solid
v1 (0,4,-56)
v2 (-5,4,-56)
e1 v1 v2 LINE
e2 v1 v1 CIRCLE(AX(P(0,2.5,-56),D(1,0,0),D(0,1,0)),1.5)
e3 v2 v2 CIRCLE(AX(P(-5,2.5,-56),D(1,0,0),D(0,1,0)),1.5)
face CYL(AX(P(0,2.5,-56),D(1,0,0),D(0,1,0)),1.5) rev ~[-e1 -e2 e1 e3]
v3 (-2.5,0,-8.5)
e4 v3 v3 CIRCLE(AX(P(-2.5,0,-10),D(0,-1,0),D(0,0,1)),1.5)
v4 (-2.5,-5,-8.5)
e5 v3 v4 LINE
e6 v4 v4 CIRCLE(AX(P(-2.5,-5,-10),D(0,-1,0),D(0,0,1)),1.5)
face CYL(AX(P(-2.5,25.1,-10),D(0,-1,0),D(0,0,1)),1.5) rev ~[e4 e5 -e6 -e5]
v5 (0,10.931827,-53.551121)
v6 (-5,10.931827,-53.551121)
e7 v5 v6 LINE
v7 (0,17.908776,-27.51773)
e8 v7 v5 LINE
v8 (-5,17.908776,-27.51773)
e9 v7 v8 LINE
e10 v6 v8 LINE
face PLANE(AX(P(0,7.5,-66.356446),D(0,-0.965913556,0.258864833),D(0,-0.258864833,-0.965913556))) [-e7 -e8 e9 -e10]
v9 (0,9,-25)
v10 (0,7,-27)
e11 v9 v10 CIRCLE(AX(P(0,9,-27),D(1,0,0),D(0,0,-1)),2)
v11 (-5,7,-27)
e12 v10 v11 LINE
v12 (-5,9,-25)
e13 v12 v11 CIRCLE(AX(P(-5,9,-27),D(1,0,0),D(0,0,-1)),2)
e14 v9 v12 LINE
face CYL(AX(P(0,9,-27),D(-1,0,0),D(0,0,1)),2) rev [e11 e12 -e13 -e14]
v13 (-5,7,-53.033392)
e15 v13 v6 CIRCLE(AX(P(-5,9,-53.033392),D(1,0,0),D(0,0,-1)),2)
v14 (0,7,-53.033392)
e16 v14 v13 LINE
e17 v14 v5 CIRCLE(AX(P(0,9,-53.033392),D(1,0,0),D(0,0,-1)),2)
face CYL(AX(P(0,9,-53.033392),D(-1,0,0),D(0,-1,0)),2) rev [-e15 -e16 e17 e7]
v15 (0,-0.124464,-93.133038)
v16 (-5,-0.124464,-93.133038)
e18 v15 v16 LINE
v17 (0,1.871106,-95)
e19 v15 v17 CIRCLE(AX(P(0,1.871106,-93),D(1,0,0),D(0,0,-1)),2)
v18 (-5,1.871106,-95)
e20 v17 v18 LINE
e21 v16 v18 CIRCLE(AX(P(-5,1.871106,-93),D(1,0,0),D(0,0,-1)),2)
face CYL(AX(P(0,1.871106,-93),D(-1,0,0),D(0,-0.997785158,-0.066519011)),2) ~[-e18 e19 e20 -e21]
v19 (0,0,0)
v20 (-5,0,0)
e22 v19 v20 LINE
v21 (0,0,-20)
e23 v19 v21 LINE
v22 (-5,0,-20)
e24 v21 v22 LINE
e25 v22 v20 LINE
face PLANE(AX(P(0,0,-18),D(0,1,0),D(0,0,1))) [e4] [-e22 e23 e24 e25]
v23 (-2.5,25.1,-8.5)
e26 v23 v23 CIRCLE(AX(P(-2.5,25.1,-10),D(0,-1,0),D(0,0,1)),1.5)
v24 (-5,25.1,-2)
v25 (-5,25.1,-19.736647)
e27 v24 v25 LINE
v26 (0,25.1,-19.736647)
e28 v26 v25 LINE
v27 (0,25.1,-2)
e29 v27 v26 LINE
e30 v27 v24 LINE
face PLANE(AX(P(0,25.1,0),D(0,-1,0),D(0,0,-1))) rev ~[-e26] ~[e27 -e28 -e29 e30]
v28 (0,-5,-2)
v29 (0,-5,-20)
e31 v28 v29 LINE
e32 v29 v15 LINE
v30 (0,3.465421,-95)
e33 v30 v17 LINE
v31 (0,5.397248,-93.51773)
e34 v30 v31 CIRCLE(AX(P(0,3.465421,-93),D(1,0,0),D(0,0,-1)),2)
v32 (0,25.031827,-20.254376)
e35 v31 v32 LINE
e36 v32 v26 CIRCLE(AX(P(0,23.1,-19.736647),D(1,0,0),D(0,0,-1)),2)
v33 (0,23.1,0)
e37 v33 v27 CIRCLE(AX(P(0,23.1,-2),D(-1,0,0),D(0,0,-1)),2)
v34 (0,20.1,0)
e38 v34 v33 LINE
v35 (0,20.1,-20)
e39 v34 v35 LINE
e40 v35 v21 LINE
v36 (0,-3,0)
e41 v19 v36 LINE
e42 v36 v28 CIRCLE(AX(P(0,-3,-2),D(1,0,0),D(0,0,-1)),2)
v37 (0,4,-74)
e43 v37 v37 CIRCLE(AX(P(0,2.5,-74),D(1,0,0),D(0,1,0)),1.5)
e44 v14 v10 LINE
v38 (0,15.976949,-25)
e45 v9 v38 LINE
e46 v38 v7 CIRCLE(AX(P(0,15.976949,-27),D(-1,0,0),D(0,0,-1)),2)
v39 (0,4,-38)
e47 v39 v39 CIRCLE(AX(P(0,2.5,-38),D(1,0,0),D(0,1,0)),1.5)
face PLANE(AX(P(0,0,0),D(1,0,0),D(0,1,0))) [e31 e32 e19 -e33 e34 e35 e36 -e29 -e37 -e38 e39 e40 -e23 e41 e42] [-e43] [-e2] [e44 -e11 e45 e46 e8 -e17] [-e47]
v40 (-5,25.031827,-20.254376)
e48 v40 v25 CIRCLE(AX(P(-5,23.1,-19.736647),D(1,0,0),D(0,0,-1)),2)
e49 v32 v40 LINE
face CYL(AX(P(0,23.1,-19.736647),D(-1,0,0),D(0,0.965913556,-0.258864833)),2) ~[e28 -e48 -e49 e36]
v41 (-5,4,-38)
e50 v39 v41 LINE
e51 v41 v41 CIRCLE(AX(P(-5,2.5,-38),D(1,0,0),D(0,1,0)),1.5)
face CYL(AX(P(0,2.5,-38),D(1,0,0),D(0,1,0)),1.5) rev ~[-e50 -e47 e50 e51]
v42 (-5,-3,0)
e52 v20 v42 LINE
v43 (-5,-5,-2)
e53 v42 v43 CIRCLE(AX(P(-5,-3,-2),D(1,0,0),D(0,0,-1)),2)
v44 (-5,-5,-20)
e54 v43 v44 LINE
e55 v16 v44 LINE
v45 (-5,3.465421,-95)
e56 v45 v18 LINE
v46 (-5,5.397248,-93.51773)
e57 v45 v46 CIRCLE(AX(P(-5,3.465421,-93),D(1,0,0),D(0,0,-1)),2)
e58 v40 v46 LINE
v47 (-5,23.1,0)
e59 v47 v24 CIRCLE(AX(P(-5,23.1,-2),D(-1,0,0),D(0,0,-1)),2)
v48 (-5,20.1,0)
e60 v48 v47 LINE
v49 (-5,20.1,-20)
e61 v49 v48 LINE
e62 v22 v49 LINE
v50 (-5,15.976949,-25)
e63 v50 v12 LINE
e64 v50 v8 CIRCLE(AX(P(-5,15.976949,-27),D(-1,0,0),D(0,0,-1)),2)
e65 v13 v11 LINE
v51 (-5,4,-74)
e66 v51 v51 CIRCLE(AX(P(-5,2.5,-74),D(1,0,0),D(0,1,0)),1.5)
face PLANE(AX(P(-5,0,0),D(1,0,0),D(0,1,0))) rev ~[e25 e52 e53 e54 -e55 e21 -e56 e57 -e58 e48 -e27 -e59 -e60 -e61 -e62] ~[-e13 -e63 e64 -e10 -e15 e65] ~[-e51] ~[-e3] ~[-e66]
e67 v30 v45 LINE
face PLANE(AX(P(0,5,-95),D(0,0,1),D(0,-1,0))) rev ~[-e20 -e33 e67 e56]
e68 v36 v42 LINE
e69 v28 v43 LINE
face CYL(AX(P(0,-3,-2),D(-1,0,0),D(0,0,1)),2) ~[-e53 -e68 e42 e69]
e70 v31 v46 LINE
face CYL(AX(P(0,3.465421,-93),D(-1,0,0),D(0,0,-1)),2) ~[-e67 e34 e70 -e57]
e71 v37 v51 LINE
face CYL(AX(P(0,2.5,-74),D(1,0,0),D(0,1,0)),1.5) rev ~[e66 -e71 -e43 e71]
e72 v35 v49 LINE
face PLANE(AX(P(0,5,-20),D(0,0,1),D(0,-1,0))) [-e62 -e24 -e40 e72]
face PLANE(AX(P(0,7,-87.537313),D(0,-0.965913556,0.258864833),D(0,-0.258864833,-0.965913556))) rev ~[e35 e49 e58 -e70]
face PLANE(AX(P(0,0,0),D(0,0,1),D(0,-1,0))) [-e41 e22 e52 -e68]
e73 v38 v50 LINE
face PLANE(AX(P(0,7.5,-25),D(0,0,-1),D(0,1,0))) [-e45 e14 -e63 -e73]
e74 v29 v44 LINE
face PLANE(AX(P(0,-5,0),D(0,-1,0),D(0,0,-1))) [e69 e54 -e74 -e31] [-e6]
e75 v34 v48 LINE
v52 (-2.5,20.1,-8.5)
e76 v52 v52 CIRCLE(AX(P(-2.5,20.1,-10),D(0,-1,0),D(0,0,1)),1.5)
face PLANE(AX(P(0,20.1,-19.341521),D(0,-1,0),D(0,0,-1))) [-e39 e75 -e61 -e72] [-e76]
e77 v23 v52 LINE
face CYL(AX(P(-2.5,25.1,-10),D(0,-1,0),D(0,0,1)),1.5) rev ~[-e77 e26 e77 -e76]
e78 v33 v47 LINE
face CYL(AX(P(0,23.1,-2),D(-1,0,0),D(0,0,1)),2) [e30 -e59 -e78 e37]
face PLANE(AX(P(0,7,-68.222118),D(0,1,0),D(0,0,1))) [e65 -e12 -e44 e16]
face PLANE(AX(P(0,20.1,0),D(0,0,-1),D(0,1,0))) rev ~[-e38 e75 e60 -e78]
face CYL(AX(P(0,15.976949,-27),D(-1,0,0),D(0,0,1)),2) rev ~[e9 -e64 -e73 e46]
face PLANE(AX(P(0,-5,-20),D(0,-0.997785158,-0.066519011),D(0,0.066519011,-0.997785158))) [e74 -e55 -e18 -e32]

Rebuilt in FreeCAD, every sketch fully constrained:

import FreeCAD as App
import Part
import Sketcher

V = App.Vector


def edges_at(feature, points):
    """Names of the edges that pass closest to the given points."""
    edges = feature.Shape.Edges
    near = lambda p: min(range(len(edges)), key=lambda i: edges[i].distToShape(Part.Vertex(*p))[0])
    return sorted({f"Edge{near(p) + 1}" for p in points})


def add_polygon(sketch, points):
    """Adds a closed chain of lines whose ends are joined by coincident constraints."""
    first, n = sketch.GeometryCount, len(points)
    for a, b in zip(points, points[1:] + points[:1]):
        sketch.addGeometry(Part.LineSegment(App.Vector(*a, 0), App.Vector(*b, 0)), False)
    for i in range(n):
        sketch.addConstraint(Sketcher.Constraint("Coincident", first + i, 2, first + (i + 1) % n, 1))

doc = App.newDocument("Part")
body = doc.addObject("PartDesign::Body", "Body")

# Sketch on YZ plane
sketch1 = body.newObject("Sketcher::SketchObject", "Sketch")
sketch1.AttachmentSupport = (doc.getObject("YZ_Plane"), [""])
sketch1.MapMode = "FlatFace"
add_polygon(sketch1, [(0, 0), (-5, 0), (-5, -20), (0, -95), (5, -95), (25.1, -20), (25.1, 0), (20.1, 0), (20.1, -20), (0, -20)])  # lines 0-9
sketch1.addGeometry(Part.Circle(V(2.5, -56, 0), V(0, 0, 1), 1.5), False)  # 10
sketch1.addGeometry(Part.Circle(V(2.5, -38, 0), V(0, 0, 1), 1.5), False)  # 11
sketch1.addGeometry(Part.Circle(V(2.5, -74, 0), V(0, 0, 1), 1.5), False)  # 12
add_polygon(sketch1, [(18.6, -25), (7, -68.2), (7, -25)])  # lines 13-15
sketch1.addConstraint([
    Sketcher.Constraint("Horizontal", 0),
    Sketcher.Constraint("Vertical", 1),
    Sketcher.Constraint("Horizontal", 3),
    Sketcher.Constraint("Vertical", 5),
    Sketcher.Constraint("Horizontal", 6),
    Sketcher.Constraint("Vertical", 7),
    Sketcher.Constraint("Horizontal", 8),
    Sketcher.Constraint("Vertical", 9),
    Sketcher.Constraint("Vertical", 14),
    Sketcher.Constraint("Horizontal", 15),
    Sketcher.Constraint("Coincident", 9, 2, -1, 1),
    Sketcher.Constraint("Equal", 10, 11),
    Sketcher.Constraint("Equal", 11, 12),
    Sketcher.Constraint("PointOnObject", 2, 2, -2),
    Sketcher.Constraint("PointOnObject", 5, 2, -1),
    Sketcher.Constraint("Parallel", 4, 13),
    Sketcher.Constraint("Horizontal", 1, 2, 4, 2),
    Sketcher.Constraint("Horizontal", 4, 2, 7, 2),
    Sketcher.Constraint("Vertical", 10, 3, 11, 3),
    Sketcher.Constraint("Vertical", 11, 3, 12, 3),
    Sketcher.Constraint("Equal", 0, 3),
    Sketcher.Constraint("Equal", 3, 6),
    Sketcher.Constraint("Diameter", 10, 3.0),
    Sketcher.Constraint("DistanceX", 0, 2, 0, 1, 5.0),
    Sketcher.Constraint("DistanceY", 1, 2, 1, 1, 20.0),
    Sketcher.Constraint("DistanceX", 8, 2, 8, 1, 20.1),
    Sketcher.Constraint("DistanceY", 10, 3, 11, 3, 18.0),
    Sketcher.Constraint("DistanceY", 12, 3, 10, 3, 18.0),
    Sketcher.Constraint("DistanceY", 11, 3, 1, 2, 18.0),
    Sketcher.Constraint("DistanceY", 2, 2, 1, 2, 75.0),
    Sketcher.Constraint("DistanceX", 3, 2, 13, 2, 2.0),
    Sketcher.Constraint("DistanceY", 14, 2, 8, 2, 5.0),
    Sketcher.Constraint("DistanceX", -1, 1, 10, 3, 2.5),
    Sketcher.Constraint("DistanceY", 14, 1, 14, 2, 43.222),
])
pad1 = body.newObject("PartDesign::Pad", "Pad")
pad1.Profile = sketch1
pad1.Length = 5
pad1.Reversed = True
doc.recompute()

fillet = body.newObject("PartDesign::Fillet", "Fillet")
fillet.Base = (pad1, edges_at(pad1, [
    (-2.5, 7, -25),
    (-2.5, 18.584, -25),
    (-2.5, 7, -68.222),
    (-2.5, 25.1, 0),
    (-2.5, 25.1, -20),
    (-2.5, -5, 0),
    (-2.5, -5, -20),
    (-2.5, 0, -95),
    (-2.5, 5, -95),
]))
fillet.Radius = 2

# Sketch on XZ plane
sketch2 = body.newObject("Sketcher::SketchObject", "Sketch001")
sketch2.AttachmentSupport = (doc.getObject("XZ_Plane"), [""])
sketch2.MapMode = "FlatFace"
sketch2.AttachmentOffset = App.Placement(V(0, 0, -25.1), App.Rotation())
sketch2.addGeometry(Part.Circle(V(-2.5, -10, 0), V(0, 0, 1), 1.5), False)
sketch2.addConstraint([
    Sketcher.Constraint("Diameter", 0, 3.0),
    Sketcher.Constraint("DistanceY", 0, 3, -1, 1, 10.0),
    Sketcher.Constraint("DistanceX", 0, 3, -1, 1, 2.5),
])
doc.recompute()
hole = body.newObject("PartDesign::Hole", "Hole")
hole.Profile = sketch2
hole.ThreadType = "None"
hole.Diameter = 3
hole.DepthType = "ThroughAll"
hole.Reversed = True

doc.recompute()
